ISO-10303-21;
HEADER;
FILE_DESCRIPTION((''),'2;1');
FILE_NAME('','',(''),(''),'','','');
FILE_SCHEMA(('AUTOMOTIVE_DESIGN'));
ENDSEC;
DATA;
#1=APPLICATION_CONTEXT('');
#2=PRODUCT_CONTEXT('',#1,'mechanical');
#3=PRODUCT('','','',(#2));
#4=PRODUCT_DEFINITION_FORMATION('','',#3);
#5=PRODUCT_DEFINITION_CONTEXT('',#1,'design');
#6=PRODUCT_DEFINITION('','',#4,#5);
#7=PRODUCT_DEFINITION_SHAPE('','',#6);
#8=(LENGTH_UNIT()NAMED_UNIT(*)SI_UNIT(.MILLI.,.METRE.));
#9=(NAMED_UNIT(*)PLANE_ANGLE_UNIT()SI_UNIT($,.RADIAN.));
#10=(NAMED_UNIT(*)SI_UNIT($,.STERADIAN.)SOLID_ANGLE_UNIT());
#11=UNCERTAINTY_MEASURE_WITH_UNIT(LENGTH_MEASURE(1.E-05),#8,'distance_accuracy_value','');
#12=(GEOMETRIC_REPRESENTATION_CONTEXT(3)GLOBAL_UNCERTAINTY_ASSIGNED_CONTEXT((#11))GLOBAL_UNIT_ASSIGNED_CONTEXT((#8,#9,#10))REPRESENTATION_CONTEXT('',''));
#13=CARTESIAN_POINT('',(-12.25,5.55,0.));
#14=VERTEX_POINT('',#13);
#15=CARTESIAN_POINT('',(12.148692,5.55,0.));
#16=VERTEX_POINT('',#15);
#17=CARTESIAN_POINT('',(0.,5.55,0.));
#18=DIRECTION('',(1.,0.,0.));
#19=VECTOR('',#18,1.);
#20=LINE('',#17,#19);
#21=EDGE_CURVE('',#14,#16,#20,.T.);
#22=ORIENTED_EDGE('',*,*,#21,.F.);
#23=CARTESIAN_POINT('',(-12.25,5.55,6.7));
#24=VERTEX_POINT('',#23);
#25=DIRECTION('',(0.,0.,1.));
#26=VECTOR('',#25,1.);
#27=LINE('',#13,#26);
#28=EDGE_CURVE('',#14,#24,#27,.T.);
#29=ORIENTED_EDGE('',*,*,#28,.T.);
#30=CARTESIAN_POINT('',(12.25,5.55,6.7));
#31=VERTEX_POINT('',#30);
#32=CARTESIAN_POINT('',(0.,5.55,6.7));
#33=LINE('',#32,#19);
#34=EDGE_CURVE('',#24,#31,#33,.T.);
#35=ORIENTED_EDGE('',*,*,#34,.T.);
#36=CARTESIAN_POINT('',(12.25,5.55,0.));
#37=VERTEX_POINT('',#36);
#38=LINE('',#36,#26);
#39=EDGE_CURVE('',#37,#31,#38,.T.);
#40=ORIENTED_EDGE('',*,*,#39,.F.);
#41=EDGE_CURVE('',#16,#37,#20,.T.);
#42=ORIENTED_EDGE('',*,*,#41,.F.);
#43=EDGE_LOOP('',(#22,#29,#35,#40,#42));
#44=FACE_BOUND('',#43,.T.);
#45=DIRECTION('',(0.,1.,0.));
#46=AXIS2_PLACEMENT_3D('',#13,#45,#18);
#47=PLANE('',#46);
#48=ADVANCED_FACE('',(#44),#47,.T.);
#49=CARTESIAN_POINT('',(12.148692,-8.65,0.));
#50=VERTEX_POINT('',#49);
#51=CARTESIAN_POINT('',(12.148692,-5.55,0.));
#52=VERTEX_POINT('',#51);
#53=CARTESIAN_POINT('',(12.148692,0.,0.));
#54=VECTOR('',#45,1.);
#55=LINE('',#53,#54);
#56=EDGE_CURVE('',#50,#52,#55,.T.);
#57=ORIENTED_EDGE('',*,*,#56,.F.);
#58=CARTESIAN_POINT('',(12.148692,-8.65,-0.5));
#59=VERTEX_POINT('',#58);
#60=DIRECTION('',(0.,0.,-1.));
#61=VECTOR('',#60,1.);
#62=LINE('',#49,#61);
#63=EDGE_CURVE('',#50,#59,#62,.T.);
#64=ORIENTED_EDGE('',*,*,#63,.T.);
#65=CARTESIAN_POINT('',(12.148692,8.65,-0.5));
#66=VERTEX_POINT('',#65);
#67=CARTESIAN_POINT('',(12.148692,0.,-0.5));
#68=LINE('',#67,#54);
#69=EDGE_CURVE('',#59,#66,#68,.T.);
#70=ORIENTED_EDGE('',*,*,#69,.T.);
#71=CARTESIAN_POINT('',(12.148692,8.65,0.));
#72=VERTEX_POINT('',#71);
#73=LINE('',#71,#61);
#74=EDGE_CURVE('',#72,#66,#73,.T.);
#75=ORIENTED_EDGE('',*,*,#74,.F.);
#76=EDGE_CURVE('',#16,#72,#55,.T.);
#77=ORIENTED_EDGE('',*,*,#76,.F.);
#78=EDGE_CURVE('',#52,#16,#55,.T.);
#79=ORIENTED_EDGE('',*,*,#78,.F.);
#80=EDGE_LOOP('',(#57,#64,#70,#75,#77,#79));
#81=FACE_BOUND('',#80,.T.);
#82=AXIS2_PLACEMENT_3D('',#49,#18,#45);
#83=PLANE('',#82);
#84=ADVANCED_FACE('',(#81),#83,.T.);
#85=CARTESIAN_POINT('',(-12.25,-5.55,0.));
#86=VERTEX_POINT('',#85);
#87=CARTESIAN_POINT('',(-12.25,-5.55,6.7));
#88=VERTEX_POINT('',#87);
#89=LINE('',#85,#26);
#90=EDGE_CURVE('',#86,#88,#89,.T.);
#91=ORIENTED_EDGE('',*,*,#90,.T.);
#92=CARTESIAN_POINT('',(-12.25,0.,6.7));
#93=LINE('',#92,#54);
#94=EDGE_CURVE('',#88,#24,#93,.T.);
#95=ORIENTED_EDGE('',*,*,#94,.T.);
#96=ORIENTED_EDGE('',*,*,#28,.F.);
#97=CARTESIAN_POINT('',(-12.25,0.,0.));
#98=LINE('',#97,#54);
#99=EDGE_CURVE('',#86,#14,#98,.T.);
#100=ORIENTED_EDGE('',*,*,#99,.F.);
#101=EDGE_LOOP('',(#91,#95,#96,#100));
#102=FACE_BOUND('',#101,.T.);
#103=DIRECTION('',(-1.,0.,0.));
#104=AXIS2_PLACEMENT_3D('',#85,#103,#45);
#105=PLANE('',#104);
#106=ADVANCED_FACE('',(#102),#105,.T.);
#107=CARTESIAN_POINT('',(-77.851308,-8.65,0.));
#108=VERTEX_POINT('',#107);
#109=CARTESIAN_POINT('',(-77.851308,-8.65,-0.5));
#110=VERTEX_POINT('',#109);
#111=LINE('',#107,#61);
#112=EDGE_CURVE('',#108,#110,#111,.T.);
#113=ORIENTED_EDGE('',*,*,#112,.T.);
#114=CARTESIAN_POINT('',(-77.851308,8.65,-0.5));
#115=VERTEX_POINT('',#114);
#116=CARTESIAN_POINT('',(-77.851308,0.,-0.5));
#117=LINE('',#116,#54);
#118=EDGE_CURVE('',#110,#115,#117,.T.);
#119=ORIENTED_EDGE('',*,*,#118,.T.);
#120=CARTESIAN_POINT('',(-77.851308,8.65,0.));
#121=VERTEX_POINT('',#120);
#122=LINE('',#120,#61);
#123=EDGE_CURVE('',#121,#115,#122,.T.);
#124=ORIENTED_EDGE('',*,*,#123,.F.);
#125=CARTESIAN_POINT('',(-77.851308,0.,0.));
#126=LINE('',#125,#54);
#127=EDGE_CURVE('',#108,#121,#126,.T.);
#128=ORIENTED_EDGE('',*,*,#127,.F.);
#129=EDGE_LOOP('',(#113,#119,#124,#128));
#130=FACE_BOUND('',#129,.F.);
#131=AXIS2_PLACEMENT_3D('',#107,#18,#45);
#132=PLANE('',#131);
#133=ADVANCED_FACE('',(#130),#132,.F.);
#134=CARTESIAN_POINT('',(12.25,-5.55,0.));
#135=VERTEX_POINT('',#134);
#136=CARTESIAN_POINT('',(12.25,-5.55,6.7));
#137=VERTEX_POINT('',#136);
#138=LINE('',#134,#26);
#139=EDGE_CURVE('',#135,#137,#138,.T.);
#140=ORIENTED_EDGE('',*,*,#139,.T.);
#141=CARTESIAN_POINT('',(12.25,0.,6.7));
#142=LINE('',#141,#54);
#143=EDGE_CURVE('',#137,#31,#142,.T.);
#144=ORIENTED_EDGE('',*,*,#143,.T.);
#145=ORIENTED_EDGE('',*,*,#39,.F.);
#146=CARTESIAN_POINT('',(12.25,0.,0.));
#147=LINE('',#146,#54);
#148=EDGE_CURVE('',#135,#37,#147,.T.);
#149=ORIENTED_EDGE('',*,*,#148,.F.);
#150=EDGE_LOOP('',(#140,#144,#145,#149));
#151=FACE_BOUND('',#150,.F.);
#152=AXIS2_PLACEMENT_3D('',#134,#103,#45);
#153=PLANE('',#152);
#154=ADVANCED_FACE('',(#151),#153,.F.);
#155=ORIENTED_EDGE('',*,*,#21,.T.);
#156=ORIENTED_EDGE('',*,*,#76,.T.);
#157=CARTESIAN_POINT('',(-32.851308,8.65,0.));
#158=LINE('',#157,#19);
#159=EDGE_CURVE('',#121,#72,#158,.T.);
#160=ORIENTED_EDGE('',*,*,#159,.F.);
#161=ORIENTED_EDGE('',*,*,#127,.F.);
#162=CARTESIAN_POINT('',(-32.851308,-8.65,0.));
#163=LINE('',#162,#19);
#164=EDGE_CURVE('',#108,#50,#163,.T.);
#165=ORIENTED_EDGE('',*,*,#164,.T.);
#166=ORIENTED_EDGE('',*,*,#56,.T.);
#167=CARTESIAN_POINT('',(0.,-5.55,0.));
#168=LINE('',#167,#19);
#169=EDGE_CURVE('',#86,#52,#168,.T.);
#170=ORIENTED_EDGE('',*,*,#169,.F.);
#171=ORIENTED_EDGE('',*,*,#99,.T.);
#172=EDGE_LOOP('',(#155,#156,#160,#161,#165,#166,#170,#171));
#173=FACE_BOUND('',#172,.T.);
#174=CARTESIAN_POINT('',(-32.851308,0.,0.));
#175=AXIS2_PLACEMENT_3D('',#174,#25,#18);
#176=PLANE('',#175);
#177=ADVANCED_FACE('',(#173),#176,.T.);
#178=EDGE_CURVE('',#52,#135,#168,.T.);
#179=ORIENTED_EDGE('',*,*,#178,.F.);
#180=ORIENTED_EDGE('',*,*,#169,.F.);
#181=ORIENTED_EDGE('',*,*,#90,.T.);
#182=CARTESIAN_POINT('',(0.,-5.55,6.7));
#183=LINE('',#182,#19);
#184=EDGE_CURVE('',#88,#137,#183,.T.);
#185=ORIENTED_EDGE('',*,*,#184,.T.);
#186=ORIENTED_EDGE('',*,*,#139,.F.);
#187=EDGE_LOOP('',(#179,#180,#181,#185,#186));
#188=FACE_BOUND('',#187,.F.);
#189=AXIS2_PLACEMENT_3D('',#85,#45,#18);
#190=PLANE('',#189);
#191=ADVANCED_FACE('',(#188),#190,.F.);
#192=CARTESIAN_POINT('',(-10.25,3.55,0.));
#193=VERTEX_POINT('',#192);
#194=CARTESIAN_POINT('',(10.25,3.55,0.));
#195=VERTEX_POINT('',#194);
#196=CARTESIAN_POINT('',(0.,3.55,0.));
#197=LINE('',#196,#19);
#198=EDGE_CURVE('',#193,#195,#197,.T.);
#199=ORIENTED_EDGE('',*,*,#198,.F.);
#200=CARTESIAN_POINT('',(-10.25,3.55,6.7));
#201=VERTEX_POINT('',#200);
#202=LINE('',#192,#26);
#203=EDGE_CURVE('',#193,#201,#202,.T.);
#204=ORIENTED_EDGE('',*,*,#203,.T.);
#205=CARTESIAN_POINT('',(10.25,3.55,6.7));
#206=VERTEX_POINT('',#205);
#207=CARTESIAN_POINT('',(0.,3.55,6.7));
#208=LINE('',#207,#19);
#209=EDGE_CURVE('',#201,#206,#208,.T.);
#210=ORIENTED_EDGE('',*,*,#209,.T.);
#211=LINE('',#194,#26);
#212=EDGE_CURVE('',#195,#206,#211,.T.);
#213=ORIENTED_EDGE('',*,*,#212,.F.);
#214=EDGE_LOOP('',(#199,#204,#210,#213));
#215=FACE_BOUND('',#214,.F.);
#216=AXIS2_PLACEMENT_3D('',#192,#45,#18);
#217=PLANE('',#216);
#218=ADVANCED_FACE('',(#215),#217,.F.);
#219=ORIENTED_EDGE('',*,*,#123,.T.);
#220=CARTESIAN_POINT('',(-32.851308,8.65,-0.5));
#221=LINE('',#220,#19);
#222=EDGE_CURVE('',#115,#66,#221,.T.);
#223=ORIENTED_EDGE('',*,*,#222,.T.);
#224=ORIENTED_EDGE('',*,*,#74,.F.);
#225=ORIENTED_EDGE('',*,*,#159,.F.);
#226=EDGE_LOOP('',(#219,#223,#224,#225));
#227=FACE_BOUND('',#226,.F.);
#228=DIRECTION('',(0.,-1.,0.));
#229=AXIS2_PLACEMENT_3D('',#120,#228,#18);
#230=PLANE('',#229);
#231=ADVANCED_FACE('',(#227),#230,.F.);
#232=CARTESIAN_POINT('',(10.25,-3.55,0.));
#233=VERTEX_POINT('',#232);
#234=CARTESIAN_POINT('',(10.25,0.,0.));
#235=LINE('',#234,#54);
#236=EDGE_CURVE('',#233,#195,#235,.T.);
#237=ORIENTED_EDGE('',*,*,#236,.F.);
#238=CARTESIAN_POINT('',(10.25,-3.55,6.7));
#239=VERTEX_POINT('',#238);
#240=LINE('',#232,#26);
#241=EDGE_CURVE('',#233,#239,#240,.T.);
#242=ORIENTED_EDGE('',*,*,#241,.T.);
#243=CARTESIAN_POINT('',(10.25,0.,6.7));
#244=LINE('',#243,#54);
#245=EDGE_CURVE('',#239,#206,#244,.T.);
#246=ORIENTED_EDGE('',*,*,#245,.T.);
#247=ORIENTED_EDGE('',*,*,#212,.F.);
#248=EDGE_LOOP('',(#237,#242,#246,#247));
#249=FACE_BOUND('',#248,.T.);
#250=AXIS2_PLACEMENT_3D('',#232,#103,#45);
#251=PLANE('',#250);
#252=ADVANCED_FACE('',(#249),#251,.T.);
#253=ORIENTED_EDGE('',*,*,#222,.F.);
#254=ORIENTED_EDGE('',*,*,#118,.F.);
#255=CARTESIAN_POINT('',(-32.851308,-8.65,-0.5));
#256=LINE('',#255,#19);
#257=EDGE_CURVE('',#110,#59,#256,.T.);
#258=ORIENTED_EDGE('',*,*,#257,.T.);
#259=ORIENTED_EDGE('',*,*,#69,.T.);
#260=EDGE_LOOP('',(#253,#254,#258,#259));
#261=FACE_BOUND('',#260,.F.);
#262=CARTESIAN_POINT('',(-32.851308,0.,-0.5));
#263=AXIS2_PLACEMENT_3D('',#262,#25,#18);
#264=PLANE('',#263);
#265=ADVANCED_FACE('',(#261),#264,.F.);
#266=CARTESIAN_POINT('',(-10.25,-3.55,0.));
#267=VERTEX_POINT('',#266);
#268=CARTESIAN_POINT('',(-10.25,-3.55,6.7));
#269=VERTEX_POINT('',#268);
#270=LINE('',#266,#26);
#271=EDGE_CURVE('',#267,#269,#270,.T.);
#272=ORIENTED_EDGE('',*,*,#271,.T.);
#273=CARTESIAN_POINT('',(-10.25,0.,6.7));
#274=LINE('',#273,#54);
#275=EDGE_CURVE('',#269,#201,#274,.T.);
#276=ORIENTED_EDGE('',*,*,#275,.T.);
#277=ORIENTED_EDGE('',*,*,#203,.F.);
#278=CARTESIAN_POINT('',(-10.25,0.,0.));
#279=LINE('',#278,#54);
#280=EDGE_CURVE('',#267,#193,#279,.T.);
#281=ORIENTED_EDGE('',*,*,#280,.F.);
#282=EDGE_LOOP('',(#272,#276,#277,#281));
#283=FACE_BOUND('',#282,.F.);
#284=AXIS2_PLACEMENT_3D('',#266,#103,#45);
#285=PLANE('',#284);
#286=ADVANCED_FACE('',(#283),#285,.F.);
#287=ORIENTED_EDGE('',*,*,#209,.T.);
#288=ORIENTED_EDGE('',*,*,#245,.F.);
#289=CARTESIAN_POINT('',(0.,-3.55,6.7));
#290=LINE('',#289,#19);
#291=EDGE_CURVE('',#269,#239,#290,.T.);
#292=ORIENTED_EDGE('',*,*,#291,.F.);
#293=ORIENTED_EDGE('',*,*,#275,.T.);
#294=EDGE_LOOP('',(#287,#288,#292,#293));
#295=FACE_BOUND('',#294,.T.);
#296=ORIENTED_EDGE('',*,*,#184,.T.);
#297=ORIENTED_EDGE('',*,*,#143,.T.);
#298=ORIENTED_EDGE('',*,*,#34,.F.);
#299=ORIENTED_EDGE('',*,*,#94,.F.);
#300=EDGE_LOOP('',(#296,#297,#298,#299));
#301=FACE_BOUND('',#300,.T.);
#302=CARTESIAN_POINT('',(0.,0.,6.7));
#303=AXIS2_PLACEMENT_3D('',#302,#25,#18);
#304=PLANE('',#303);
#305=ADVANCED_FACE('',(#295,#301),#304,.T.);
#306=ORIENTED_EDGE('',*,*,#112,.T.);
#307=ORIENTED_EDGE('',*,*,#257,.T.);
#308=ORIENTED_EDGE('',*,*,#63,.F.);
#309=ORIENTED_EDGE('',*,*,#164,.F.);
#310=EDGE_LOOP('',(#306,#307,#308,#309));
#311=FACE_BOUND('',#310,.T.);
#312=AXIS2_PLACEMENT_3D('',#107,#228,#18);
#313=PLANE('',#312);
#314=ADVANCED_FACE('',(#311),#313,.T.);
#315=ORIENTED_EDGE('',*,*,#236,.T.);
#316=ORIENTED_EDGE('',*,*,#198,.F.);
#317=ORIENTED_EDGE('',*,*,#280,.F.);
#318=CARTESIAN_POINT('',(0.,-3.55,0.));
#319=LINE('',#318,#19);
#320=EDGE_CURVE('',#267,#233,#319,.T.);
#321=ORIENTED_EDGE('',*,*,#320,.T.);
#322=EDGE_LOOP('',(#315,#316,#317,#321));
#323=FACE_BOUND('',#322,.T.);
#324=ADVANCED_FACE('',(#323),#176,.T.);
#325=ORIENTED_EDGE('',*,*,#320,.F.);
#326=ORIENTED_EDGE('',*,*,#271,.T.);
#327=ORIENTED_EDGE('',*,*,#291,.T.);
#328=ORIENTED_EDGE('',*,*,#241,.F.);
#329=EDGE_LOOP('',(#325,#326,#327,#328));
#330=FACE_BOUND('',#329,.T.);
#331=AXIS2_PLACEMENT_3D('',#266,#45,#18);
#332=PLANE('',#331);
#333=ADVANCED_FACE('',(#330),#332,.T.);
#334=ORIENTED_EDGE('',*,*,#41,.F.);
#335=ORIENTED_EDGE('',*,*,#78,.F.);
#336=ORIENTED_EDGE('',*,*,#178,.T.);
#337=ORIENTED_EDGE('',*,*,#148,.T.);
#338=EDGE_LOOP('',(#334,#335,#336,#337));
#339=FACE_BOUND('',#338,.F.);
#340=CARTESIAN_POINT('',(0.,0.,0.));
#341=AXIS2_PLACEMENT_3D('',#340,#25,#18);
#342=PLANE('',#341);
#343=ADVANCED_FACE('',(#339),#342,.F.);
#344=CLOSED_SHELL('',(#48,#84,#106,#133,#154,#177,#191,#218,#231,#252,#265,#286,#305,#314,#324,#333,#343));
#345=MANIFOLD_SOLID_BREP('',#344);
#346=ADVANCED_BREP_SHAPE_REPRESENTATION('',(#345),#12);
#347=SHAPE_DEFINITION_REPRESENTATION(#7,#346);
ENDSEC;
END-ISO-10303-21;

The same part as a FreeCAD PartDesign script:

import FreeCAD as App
import Part
import Sketcher
from FreeCAD import Vector
Q = App.Units.Quantity

doc = App.newDocument("Part")
body = doc.addObject("PartDesign::Body", "Body")

# Sketch on XY plane
sketch1 = body.newObject("Sketcher::SketchObject", "Sketch")
sketch1.AttachmentSupport = (doc.getObject("XY_Plane"), [""])
sketch1.MapMode = "FlatFace"
sketch1.addGeometry(Part.LineSegment(Vector(-12, 6, 0), Vector(-12, -6, 0)), False)
sketch1.addGeometry(Part.LineSegment(Vector(-12, -6, 0), Vector(12, -6, 0)), False)
sketch1.addGeometry(Part.LineSegment(Vector(12, -6, 0), Vector(12, 6, 0)), False)
sketch1.addGeometry(Part.LineSegment(Vector(12, 6, 0), Vector(-12, 6, 0)), False)
sketch1.addGeometry(Part.LineSegment(Vector(10, -4, 0), Vector(-10, -4, 0)), False)
sketch1.addGeometry(Part.LineSegment(Vector(-10, -4, 0), Vector(-10, 4, 0)), False)
sketch1.addGeometry(Part.LineSegment(Vector(-10, 4, 0), Vector(10, 4, 0)), False)
sketch1.addGeometry(Part.LineSegment(Vector(10, 4, 0), Vector(10, -4, 0)), False)
sketch1.addConstraint(Sketcher.Constraint("Coincident", 0, 2, 1, 1))
sketch1.addConstraint(Sketcher.Constraint("Coincident", 1, 2, 2, 1))
sketch1.addConstraint(Sketcher.Constraint("Coincident", 2, 2, 3, 1))
sketch1.addConstraint(Sketcher.Constraint("Coincident", 3, 2, 0, 1))
sketch1.addConstraint(Sketcher.Constraint("Coincident", 4, 2, 5, 1))
sketch1.addConstraint(Sketcher.Constraint("Coincident", 5, 2, 6, 1))
sketch1.addConstraint(Sketcher.Constraint("Coincident", 6, 2, 7, 1))
sketch1.addConstraint(Sketcher.Constraint("Coincident", 7, 2, 4, 1))
sketch1.addConstraint(Sketcher.Constraint("Vertical", 0))
sketch1.addConstraint(Sketcher.Constraint("Horizontal", 1))
sketch1.addConstraint(Sketcher.Constraint("Vertical", 2))
sketch1.addConstraint(Sketcher.Constraint("Horizontal", 3))
sketch1.addConstraint(Sketcher.Constraint("Horizontal", 4))
sketch1.addConstraint(Sketcher.Constraint("Vertical", 5))
sketch1.addConstraint(Sketcher.Constraint("Horizontal", 6))
sketch1.addConstraint(Sketcher.Constraint("Vertical", 7))
sketch1.addConstraint(Sketcher.Constraint("Symmetric", 0, 2, 2, 2, -1, 1))
sketch1.addConstraint(Sketcher.Constraint("Symmetric", 4, 2, 6, 2, -1, 1))
sketch1.addConstraint(Sketcher.Constraint("DistanceX", 1, 1, 1, 2, Q("24.5 mm")))
sketch1.addConstraint(Sketcher.Constraint("DistanceX", 4, 2, 4, 1, Q("20.5 mm")))
sketch1.addConstraint(Sketcher.Constraint("DistanceY", 0, 2, 0, 1, Q("11.1 mm")))
sketch1.addConstraint(Sketcher.Constraint("DistanceY", 5, 1, 5, 2, Q("7.1 mm")))
pad1 = body.newObject("PartDesign::Pad", "Pad")
pad1.Profile = sketch1
pad1.Length = 6.7

# Sketch on XY plane
sketch2 = body.newObject("Sketcher::SketchObject", "Sketch001")
sketch2.AttachmentSupport = (doc.getObject("XY_Plane"), [""])
sketch2.MapMode = "FlatFace"
sketch2.addGeometry(Part.LineSegment(Vector(-78, 9, 0), Vector(-78, -9, 0)), False)
sketch2.addGeometry(Part.LineSegment(Vector(-78, -9, 0), Vector(12, -9, 0)), False)
sketch2.addGeometry(Part.LineSegment(Vector(12, -9, 0), Vector(12, 9, 0)), False)
sketch2.addGeometry(Part.LineSegment(Vector(12, 9, 0), Vector(-78, 9, 0)), False)
sketch2.addConstraint(Sketcher.Constraint("Coincident", 0, 2, 1, 1))
sketch2.addConstraint(Sketcher.Constraint("Coincident", 1, 2, 2, 1))
sketch2.addConstraint(Sketcher.Constraint("Coincident", 2, 2, 3, 1))
sketch2.addConstraint(Sketcher.Constraint("Coincident", 3, 2, 0, 1))
sketch2.addConstraint(Sketcher.Constraint("Vertical", 0))
sketch2.addConstraint(Sketcher.Constraint("Horizontal", 1))
sketch2.addConstraint(Sketcher.Constraint("Vertical", 2))
sketch2.addConstraint(Sketcher.Constraint("Horizontal", 3))
sketch2.addConstraint(Sketcher.Constraint("DistanceX", 1, 1, 1, 2, Q("90 mm")))
sketch2.addConstraint(Sketcher.Constraint("DistanceY", 0, 2, 0, 1, Q("17.3 mm")))
sketch2.addConstraint(Sketcher.Constraint("DistanceY", 0, 2, -1, 1, Q("8.65 mm")))
sketch2.addConstraint(Sketcher.Constraint("DistanceX", 0, 2, -1, 1, Q("77.851308 mm")))
pad2 = body.newObject("PartDesign::Pad", "Pad001")
pad2.Profile = sketch2
pad2.Length = 0.5
pad2.Reversed = True

doc.recompute()
